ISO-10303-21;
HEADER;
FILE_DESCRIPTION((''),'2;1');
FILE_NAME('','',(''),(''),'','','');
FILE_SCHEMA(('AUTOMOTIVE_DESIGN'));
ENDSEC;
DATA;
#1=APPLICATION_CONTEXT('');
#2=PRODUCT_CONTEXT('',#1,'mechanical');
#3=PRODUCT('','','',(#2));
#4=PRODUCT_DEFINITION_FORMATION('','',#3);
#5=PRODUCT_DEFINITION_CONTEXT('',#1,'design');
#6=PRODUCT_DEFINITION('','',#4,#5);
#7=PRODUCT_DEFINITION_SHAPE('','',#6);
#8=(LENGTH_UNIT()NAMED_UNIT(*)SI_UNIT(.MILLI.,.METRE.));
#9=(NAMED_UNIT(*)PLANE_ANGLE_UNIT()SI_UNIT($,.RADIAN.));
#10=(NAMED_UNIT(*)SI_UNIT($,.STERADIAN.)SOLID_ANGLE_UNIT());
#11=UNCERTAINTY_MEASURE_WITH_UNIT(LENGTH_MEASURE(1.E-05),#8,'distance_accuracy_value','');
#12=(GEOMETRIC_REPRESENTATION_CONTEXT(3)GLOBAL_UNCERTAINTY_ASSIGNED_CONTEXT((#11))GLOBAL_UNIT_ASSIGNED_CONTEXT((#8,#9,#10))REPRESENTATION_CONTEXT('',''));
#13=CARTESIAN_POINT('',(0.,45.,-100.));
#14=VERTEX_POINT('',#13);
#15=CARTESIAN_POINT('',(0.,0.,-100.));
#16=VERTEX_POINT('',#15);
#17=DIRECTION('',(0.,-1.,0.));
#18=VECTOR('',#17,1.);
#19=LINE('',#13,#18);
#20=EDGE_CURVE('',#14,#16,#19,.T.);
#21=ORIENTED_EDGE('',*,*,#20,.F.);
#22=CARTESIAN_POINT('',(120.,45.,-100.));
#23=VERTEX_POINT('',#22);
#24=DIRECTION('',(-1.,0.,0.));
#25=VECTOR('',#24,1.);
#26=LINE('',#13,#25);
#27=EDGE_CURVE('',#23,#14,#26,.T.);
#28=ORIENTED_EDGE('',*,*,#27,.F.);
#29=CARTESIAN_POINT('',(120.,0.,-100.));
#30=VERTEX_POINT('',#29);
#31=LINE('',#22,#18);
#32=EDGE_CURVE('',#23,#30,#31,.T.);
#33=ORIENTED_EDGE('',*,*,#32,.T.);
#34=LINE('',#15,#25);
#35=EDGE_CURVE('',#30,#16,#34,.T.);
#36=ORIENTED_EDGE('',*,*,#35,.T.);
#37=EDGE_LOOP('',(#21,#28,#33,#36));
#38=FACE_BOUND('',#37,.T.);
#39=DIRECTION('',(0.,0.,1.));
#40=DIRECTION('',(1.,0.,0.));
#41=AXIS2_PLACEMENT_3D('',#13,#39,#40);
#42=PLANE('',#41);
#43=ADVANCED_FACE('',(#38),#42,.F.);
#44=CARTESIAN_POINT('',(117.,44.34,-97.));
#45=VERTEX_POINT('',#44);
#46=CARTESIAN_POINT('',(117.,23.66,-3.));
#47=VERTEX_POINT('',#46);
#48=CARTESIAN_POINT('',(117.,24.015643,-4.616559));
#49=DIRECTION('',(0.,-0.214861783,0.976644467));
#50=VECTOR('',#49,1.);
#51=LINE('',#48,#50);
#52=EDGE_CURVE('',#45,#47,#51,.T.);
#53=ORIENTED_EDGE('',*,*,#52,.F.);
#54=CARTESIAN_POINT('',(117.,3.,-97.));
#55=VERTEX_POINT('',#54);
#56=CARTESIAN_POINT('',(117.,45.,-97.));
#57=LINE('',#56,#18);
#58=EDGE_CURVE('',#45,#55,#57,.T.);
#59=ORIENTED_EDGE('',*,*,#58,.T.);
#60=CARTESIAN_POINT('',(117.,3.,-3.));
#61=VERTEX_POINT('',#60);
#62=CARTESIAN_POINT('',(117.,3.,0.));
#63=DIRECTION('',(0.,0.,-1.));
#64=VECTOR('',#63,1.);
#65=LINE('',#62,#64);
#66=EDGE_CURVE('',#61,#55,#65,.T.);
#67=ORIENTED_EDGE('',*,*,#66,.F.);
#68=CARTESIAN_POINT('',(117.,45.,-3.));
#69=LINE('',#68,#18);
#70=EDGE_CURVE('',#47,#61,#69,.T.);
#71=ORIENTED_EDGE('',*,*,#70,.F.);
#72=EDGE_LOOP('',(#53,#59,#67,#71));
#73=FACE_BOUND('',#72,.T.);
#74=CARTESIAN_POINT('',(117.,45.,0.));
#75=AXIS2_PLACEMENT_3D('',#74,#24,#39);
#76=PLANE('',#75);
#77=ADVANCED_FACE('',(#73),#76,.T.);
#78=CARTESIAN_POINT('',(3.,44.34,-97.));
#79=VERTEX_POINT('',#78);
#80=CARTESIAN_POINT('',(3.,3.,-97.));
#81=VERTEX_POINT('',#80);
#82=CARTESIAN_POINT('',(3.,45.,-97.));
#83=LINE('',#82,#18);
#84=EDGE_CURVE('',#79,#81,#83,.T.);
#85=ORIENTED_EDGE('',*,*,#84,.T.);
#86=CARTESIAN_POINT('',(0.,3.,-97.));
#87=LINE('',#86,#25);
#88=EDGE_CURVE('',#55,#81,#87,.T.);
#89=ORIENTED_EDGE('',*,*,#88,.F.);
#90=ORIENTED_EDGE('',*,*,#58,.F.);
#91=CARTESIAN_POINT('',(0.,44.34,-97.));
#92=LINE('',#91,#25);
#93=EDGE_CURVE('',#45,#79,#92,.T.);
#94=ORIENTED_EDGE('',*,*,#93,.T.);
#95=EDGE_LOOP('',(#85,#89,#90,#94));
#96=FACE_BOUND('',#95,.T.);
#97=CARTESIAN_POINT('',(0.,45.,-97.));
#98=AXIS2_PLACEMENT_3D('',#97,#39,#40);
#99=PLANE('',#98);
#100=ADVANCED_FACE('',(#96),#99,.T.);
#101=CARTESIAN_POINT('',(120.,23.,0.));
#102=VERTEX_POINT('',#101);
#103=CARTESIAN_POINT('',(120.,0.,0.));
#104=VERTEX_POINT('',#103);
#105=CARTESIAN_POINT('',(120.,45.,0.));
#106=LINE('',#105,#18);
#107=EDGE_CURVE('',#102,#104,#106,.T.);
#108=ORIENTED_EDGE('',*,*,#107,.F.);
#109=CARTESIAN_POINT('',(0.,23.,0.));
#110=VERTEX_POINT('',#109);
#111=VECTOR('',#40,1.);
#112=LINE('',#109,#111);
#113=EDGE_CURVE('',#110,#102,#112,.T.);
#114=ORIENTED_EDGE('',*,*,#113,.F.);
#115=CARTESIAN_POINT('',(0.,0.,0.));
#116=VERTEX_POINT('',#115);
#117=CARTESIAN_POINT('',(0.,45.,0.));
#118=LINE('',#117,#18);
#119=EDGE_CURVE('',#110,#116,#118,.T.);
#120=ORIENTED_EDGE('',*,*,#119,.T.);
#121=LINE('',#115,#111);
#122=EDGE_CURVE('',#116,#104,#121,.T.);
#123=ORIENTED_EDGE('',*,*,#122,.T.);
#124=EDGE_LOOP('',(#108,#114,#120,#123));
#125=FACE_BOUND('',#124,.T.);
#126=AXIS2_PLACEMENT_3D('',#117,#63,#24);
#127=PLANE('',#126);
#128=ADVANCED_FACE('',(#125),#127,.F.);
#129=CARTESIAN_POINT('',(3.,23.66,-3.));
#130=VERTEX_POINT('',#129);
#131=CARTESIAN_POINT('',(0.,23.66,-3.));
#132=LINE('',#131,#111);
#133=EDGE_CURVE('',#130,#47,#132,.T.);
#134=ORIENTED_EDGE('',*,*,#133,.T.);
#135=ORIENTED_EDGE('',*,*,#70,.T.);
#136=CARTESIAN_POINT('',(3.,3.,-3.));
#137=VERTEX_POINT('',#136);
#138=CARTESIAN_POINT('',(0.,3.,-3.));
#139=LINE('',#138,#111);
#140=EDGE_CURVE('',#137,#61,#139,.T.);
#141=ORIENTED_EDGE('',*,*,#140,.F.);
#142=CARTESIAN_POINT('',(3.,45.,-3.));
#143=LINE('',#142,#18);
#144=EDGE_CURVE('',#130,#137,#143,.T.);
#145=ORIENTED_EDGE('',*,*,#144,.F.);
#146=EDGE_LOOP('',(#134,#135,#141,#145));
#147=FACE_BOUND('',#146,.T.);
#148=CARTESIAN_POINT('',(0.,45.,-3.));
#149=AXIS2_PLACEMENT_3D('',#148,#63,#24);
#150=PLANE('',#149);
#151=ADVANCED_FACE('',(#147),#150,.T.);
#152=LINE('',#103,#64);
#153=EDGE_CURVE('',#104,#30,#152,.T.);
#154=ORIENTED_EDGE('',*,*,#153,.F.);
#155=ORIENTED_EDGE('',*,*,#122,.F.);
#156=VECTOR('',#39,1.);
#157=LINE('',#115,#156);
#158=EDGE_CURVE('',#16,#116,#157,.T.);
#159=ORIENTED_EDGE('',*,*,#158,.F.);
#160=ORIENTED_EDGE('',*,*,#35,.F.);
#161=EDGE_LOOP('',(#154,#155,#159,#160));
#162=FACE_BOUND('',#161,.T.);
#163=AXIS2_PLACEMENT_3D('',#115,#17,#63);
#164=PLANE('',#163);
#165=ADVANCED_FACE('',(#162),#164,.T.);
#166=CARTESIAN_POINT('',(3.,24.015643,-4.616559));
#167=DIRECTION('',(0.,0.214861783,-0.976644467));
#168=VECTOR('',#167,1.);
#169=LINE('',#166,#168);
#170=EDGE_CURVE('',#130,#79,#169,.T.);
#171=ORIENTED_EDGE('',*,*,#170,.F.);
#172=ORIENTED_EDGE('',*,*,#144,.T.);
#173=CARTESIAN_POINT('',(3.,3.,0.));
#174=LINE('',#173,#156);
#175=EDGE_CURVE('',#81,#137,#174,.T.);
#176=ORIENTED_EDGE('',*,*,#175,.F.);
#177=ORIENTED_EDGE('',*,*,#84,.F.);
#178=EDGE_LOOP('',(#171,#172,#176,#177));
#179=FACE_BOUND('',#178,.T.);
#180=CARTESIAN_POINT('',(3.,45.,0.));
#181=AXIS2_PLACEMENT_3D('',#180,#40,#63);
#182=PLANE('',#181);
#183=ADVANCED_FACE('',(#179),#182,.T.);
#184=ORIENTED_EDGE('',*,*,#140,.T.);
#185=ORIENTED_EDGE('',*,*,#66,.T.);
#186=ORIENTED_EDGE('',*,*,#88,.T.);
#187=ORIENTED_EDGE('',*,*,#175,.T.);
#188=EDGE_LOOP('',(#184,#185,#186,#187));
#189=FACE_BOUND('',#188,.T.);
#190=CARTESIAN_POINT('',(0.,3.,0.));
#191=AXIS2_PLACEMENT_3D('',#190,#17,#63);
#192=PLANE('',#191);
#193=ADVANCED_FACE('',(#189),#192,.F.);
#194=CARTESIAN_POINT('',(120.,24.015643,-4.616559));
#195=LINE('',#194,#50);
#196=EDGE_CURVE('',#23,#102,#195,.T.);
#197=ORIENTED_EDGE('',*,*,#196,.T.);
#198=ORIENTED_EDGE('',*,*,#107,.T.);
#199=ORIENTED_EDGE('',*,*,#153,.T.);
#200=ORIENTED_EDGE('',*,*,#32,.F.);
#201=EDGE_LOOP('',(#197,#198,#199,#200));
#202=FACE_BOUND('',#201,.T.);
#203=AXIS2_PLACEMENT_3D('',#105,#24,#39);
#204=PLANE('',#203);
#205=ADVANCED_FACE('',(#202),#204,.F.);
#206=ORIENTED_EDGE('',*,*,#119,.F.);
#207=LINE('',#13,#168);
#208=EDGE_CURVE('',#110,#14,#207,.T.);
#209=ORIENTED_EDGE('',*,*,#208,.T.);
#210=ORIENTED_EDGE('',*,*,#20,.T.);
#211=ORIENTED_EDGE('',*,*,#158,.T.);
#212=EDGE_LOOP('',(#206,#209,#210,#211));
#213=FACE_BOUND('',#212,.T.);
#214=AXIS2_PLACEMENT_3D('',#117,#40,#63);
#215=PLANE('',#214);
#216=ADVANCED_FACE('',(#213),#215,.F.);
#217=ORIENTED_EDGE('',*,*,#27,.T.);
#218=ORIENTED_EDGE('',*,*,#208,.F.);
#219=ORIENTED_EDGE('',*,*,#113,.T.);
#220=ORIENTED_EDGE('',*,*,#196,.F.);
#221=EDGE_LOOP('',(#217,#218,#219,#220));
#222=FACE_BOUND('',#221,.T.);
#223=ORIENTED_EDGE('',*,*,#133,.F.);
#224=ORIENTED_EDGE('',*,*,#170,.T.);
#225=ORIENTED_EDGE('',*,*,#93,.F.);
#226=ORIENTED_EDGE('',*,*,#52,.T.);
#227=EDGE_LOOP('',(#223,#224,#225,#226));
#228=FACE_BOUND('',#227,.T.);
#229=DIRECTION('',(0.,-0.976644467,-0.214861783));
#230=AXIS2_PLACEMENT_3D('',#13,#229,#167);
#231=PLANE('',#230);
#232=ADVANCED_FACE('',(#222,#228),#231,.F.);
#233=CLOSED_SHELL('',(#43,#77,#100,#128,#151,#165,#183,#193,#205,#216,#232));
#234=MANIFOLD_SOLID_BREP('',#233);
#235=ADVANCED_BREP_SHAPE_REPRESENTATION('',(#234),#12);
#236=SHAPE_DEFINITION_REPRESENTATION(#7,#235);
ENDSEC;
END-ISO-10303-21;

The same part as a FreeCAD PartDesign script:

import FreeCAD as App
import Part
import Sketcher

V = App.Vector
Q = App.Units.Quantity


def faces_at(feature, points):
    """Names of the faces that lie closest to the given points."""
    faces = feature.Shape.Faces
    near = lambda p: min(range(len(faces)), key=lambda i: faces[i].distToShape(Part.Vertex(*p))[0])
    return sorted({f"Face{near(p) + 1}" for p in points})

doc = App.newDocument("Part")
params = doc.addObject("Spreadsheet::Sheet", "Params")
for row, (alias, value) in enumerate([
    ("sketch1_width", "120 mm"),
    ("sketch1_height", "100 mm"),
    ("pad1_length", "45 mm"),
    ("sketch2_width", "22 mm"),
    ("sketch2_height", "100 mm"),
    ("thickness_wall", "3 mm"),
], start=1):
    params.set(f"A{row}", alias)
    params.set(f"B{row}", "=" + value)
    params.setAlias(f"B{row}", alias)

body = doc.addObject("PartDesign::Body", "Body")

# Sketch on XZ plane
sketch1 = doc.addObject("Sketcher::SketchObject", "Sketch")
body.addObject(sketch1)
sketch1.AttachmentSupport = (doc.XZ_Plane, [""])
sketch1.MapMode = "FlatFace"
sketch1.addGeometry([
    Part.LineSegment(V(0, -100, 0), V(0, 0, 0)),
    Part.LineSegment(V(0, 0, 0), V(120, 0, 0)),
    Part.LineSegment(V(120, 0, 0), V(120, -100, 0)),
    Part.LineSegment(V(120, -100, 0), V(0, -100, 0)),
], False)
sketch1.addConstraint([
    Sketcher.Constraint("Coincident", 0, 2, 1, 1),
    Sketcher.Constraint("Coincident", 1, 2, 2, 1),
    Sketcher.Constraint("Coincident", 2, 2, 3, 1),
    Sketcher.Constraint("Coincident", 3, 2, 0, 1),
    Sketcher.Constraint("Vertical", 0),
    Sketcher.Constraint("Horizontal", 1),
    Sketcher.Constraint("Vertical", 2),
    Sketcher.Constraint("Horizontal", 3),
    Sketcher.Constraint("Coincident", 0, 2, -1, 1),
    Sketcher.Constraint("DistanceX", 1, 1, 1, 2, Q("120 mm")),
    Sketcher.Constraint("DistanceY", 0, 1, 0, 2, Q("100 mm")),
])
sketch1.setExpression("Constraints[9]", "Params.sketch1_width")
sketch1.setExpression("Constraints[10]", "Params.sketch1_height")
pad1 = doc.addObject("PartDesign::Pad", "Pad")
body.addObject(pad1)
pad1.Profile = sketch1
pad1.setExpression("Length", "Params.pad1_length")
pad1.Reversed = True

# Sketch on YZ plane
sketch2 = doc.addObject("Sketcher::SketchObject", "Sketch001")
body.addObject(sketch2)
sketch2.AttachmentSupport = (doc.YZ_Plane, [""])
sketch2.MapMode = "FlatFace"
sketch2.AttachmentOffset = App.Placement(V(0, 0, 120), App.Rotation())
sketch2.addGeometry([
    Part.LineSegment(V(45, 0, 0), V(23, 0, 0)),
    Part.LineSegment(V(23, 0, 0), V(45, -100, 0)),
    Part.LineSegment(V(45, -100, 0), V(45, 0, 0)),
], False)
sketch2.addConstraint([
    Sketcher.Constraint("Coincident", 0, 2, 1, 1),
    Sketcher.Constraint("Coincident", 1, 2, 2, 1),
    Sketcher.Constraint("Coincident", 2, 2, 0, 1),
    Sketcher.Constraint("Horizontal", 0),
    Sketcher.Constraint("Vertical", 2),
    Sketcher.Constraint("PointOnObject", 0, 2, -1),
    Sketcher.Constraint("DistanceX", 0, 2, 0, 1, Q("22 mm")),
    Sketcher.Constraint("DistanceY", 2, 1, 2, 2, Q("100 mm")),
    Sketcher.Constraint("DistanceX", -1, 1, 0, 2, Q("23 mm")),
])
sketch2.setExpression("Constraints[6]", "Params.sketch2_width")
sketch2.setExpression("Constraints[7]", "Params.sketch2_height")
pocket1 = doc.addObject("PartDesign::Pocket", "Pocket")
body.addObject(pocket1)
pocket1.Profile = sketch2
pocket1.Type = "ThroughAll"
pocket1.Midplane = True
doc.recompute()

thickness = doc.addObject("PartDesign::Thickness", "Thickness")
body.addObject(thickness)
thickness.Base = (pocket1, faces_at(pocket1, [(60, 34, -50)]))
thickness.setExpression("Value", "Params.thickness_wall")
thickness.Reversed = True
thickness.Join = "Intersection"

doc.recompute()
